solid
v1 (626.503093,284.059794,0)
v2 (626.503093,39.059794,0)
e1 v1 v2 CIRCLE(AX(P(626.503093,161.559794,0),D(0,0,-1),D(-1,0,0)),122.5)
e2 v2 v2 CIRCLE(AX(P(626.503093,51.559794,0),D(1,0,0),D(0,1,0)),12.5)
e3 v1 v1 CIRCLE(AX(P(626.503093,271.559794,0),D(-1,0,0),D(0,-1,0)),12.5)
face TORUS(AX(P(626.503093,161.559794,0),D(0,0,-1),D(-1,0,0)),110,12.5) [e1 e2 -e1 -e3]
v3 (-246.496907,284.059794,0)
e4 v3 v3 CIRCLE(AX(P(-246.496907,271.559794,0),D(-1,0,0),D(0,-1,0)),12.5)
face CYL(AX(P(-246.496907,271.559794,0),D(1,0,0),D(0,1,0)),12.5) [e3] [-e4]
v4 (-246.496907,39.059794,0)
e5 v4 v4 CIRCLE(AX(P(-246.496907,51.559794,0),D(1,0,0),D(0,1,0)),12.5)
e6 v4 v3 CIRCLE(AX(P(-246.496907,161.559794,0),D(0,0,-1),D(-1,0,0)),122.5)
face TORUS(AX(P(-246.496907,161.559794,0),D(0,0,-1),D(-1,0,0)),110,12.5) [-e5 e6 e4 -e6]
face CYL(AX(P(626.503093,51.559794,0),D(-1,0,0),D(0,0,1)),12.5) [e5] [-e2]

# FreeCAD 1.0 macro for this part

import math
import FreeCAD as App
import Part
import Sketcher

V = App.Vector
Q = App.Units.Quantity

doc = App.newDocument("Part")
params = doc.addObject("Spreadsheet::Sheet", "Params")
for row, (alias, value) in enumerate([
    ("sketch1_diameter", "25 mm"),
    ("sketch2_radius", "110 mm"),
    ("sketch2_width", "873 mm"),
], start=1):
    params.set(f"A{row}", alias)
    params.set(f"B{row}", "=" + value)
    params.setAlias(f"B{row}", alias)

body = doc.addObject("PartDesign::Body", "Body")

# Sketch on YZ plane
sketch1 = body.newObject("Sketcher::SketchObject", "Sketch")
sketch1.AttachmentSupport = (doc.getObject("YZ_Plane"), [""])
sketch1.MapMode = "FlatFace"
sketch1.AttachmentOffset = App.Placement(V(0, 0, -246.496907), App.Rotation())
sketch1.addGeometry(Part.Circle(V(272, 0, 0), V(0, 0, 1), 12), False)
sketch1.addConstraint([
    Sketcher.Constraint("PointOnObject", 0, 3, -1),
    Sketcher.Constraint("Diameter", 0, Q("25 mm")),
    Sketcher.Constraint("DistanceX", -1, 1, 0, 3, Q("271.559794 mm")),
])
sketch1.setExpression("Constraints[1]", "Params.sketch1_diameter")

# Sketch on XY plane
sketch2 = body.newObject("Sketcher::SketchObject", "Sketch001")
sketch2.AttachmentSupport = (doc.getObject("XY_Plane"), [""])
sketch2.MapMode = "FlatFace"
sketch2.addGeometry([
    Part.LineSegment(V(-246, 272, 0), V(627, 272, 0)),
    Part.ArcOfCircle(Part.Circle(V(627, 162, 0), V(0, 0, 1), 110), math.radians(-90), math.radians(90)),
    Part.LineSegment(V(627, 52, 0), V(-246, 52, 0)),
    Part.ArcOfCircle(Part.Circle(V(-246, 162, 0), V(0, 0, 1), 110), math.radians(90), math.radians(270)),
], False)
sketch2.addConstraint([
    Sketcher.Constraint("Tangent", 0, 2, 1, 2),
    Sketcher.Constraint("Tangent", 1, 1, 2, 1),
    Sketcher.Constraint("Tangent", 2, 2, 3, 2),
    Sketcher.Constraint("Tangent", 3, 1, 0, 1),
    Sketcher.Constraint("Horizontal", 0),
    Sketcher.Constraint("Horizontal", 2),
    Sketcher.Constraint("Radius", 1, Q("110 mm")),
    Sketcher.Constraint("DistanceX", 0, 1, 0, 2, Q("873 mm")),
    Sketcher.Constraint("DistanceX", -1, 1, 1, 3, Q("626.503093 mm")),
    Sketcher.Constraint("DistanceY", -1, 1, 1, 3, Q("161.559794 mm")),
])
sketch2.setExpression("Constraints[6]", "Params.sketch2_radius")
sketch2.setExpression("Constraints[7]", "Params.sketch2_width")
doc.recompute()

additivepipe = body.newObject("PartDesign::AdditivePipe", "AdditivePipe")
additivepipe.Profile = sketch1
additivepipe.Spine = (sketch2, ["Edge1", "Edge2", "Edge3", "Edge4"])

doc.recompute()
